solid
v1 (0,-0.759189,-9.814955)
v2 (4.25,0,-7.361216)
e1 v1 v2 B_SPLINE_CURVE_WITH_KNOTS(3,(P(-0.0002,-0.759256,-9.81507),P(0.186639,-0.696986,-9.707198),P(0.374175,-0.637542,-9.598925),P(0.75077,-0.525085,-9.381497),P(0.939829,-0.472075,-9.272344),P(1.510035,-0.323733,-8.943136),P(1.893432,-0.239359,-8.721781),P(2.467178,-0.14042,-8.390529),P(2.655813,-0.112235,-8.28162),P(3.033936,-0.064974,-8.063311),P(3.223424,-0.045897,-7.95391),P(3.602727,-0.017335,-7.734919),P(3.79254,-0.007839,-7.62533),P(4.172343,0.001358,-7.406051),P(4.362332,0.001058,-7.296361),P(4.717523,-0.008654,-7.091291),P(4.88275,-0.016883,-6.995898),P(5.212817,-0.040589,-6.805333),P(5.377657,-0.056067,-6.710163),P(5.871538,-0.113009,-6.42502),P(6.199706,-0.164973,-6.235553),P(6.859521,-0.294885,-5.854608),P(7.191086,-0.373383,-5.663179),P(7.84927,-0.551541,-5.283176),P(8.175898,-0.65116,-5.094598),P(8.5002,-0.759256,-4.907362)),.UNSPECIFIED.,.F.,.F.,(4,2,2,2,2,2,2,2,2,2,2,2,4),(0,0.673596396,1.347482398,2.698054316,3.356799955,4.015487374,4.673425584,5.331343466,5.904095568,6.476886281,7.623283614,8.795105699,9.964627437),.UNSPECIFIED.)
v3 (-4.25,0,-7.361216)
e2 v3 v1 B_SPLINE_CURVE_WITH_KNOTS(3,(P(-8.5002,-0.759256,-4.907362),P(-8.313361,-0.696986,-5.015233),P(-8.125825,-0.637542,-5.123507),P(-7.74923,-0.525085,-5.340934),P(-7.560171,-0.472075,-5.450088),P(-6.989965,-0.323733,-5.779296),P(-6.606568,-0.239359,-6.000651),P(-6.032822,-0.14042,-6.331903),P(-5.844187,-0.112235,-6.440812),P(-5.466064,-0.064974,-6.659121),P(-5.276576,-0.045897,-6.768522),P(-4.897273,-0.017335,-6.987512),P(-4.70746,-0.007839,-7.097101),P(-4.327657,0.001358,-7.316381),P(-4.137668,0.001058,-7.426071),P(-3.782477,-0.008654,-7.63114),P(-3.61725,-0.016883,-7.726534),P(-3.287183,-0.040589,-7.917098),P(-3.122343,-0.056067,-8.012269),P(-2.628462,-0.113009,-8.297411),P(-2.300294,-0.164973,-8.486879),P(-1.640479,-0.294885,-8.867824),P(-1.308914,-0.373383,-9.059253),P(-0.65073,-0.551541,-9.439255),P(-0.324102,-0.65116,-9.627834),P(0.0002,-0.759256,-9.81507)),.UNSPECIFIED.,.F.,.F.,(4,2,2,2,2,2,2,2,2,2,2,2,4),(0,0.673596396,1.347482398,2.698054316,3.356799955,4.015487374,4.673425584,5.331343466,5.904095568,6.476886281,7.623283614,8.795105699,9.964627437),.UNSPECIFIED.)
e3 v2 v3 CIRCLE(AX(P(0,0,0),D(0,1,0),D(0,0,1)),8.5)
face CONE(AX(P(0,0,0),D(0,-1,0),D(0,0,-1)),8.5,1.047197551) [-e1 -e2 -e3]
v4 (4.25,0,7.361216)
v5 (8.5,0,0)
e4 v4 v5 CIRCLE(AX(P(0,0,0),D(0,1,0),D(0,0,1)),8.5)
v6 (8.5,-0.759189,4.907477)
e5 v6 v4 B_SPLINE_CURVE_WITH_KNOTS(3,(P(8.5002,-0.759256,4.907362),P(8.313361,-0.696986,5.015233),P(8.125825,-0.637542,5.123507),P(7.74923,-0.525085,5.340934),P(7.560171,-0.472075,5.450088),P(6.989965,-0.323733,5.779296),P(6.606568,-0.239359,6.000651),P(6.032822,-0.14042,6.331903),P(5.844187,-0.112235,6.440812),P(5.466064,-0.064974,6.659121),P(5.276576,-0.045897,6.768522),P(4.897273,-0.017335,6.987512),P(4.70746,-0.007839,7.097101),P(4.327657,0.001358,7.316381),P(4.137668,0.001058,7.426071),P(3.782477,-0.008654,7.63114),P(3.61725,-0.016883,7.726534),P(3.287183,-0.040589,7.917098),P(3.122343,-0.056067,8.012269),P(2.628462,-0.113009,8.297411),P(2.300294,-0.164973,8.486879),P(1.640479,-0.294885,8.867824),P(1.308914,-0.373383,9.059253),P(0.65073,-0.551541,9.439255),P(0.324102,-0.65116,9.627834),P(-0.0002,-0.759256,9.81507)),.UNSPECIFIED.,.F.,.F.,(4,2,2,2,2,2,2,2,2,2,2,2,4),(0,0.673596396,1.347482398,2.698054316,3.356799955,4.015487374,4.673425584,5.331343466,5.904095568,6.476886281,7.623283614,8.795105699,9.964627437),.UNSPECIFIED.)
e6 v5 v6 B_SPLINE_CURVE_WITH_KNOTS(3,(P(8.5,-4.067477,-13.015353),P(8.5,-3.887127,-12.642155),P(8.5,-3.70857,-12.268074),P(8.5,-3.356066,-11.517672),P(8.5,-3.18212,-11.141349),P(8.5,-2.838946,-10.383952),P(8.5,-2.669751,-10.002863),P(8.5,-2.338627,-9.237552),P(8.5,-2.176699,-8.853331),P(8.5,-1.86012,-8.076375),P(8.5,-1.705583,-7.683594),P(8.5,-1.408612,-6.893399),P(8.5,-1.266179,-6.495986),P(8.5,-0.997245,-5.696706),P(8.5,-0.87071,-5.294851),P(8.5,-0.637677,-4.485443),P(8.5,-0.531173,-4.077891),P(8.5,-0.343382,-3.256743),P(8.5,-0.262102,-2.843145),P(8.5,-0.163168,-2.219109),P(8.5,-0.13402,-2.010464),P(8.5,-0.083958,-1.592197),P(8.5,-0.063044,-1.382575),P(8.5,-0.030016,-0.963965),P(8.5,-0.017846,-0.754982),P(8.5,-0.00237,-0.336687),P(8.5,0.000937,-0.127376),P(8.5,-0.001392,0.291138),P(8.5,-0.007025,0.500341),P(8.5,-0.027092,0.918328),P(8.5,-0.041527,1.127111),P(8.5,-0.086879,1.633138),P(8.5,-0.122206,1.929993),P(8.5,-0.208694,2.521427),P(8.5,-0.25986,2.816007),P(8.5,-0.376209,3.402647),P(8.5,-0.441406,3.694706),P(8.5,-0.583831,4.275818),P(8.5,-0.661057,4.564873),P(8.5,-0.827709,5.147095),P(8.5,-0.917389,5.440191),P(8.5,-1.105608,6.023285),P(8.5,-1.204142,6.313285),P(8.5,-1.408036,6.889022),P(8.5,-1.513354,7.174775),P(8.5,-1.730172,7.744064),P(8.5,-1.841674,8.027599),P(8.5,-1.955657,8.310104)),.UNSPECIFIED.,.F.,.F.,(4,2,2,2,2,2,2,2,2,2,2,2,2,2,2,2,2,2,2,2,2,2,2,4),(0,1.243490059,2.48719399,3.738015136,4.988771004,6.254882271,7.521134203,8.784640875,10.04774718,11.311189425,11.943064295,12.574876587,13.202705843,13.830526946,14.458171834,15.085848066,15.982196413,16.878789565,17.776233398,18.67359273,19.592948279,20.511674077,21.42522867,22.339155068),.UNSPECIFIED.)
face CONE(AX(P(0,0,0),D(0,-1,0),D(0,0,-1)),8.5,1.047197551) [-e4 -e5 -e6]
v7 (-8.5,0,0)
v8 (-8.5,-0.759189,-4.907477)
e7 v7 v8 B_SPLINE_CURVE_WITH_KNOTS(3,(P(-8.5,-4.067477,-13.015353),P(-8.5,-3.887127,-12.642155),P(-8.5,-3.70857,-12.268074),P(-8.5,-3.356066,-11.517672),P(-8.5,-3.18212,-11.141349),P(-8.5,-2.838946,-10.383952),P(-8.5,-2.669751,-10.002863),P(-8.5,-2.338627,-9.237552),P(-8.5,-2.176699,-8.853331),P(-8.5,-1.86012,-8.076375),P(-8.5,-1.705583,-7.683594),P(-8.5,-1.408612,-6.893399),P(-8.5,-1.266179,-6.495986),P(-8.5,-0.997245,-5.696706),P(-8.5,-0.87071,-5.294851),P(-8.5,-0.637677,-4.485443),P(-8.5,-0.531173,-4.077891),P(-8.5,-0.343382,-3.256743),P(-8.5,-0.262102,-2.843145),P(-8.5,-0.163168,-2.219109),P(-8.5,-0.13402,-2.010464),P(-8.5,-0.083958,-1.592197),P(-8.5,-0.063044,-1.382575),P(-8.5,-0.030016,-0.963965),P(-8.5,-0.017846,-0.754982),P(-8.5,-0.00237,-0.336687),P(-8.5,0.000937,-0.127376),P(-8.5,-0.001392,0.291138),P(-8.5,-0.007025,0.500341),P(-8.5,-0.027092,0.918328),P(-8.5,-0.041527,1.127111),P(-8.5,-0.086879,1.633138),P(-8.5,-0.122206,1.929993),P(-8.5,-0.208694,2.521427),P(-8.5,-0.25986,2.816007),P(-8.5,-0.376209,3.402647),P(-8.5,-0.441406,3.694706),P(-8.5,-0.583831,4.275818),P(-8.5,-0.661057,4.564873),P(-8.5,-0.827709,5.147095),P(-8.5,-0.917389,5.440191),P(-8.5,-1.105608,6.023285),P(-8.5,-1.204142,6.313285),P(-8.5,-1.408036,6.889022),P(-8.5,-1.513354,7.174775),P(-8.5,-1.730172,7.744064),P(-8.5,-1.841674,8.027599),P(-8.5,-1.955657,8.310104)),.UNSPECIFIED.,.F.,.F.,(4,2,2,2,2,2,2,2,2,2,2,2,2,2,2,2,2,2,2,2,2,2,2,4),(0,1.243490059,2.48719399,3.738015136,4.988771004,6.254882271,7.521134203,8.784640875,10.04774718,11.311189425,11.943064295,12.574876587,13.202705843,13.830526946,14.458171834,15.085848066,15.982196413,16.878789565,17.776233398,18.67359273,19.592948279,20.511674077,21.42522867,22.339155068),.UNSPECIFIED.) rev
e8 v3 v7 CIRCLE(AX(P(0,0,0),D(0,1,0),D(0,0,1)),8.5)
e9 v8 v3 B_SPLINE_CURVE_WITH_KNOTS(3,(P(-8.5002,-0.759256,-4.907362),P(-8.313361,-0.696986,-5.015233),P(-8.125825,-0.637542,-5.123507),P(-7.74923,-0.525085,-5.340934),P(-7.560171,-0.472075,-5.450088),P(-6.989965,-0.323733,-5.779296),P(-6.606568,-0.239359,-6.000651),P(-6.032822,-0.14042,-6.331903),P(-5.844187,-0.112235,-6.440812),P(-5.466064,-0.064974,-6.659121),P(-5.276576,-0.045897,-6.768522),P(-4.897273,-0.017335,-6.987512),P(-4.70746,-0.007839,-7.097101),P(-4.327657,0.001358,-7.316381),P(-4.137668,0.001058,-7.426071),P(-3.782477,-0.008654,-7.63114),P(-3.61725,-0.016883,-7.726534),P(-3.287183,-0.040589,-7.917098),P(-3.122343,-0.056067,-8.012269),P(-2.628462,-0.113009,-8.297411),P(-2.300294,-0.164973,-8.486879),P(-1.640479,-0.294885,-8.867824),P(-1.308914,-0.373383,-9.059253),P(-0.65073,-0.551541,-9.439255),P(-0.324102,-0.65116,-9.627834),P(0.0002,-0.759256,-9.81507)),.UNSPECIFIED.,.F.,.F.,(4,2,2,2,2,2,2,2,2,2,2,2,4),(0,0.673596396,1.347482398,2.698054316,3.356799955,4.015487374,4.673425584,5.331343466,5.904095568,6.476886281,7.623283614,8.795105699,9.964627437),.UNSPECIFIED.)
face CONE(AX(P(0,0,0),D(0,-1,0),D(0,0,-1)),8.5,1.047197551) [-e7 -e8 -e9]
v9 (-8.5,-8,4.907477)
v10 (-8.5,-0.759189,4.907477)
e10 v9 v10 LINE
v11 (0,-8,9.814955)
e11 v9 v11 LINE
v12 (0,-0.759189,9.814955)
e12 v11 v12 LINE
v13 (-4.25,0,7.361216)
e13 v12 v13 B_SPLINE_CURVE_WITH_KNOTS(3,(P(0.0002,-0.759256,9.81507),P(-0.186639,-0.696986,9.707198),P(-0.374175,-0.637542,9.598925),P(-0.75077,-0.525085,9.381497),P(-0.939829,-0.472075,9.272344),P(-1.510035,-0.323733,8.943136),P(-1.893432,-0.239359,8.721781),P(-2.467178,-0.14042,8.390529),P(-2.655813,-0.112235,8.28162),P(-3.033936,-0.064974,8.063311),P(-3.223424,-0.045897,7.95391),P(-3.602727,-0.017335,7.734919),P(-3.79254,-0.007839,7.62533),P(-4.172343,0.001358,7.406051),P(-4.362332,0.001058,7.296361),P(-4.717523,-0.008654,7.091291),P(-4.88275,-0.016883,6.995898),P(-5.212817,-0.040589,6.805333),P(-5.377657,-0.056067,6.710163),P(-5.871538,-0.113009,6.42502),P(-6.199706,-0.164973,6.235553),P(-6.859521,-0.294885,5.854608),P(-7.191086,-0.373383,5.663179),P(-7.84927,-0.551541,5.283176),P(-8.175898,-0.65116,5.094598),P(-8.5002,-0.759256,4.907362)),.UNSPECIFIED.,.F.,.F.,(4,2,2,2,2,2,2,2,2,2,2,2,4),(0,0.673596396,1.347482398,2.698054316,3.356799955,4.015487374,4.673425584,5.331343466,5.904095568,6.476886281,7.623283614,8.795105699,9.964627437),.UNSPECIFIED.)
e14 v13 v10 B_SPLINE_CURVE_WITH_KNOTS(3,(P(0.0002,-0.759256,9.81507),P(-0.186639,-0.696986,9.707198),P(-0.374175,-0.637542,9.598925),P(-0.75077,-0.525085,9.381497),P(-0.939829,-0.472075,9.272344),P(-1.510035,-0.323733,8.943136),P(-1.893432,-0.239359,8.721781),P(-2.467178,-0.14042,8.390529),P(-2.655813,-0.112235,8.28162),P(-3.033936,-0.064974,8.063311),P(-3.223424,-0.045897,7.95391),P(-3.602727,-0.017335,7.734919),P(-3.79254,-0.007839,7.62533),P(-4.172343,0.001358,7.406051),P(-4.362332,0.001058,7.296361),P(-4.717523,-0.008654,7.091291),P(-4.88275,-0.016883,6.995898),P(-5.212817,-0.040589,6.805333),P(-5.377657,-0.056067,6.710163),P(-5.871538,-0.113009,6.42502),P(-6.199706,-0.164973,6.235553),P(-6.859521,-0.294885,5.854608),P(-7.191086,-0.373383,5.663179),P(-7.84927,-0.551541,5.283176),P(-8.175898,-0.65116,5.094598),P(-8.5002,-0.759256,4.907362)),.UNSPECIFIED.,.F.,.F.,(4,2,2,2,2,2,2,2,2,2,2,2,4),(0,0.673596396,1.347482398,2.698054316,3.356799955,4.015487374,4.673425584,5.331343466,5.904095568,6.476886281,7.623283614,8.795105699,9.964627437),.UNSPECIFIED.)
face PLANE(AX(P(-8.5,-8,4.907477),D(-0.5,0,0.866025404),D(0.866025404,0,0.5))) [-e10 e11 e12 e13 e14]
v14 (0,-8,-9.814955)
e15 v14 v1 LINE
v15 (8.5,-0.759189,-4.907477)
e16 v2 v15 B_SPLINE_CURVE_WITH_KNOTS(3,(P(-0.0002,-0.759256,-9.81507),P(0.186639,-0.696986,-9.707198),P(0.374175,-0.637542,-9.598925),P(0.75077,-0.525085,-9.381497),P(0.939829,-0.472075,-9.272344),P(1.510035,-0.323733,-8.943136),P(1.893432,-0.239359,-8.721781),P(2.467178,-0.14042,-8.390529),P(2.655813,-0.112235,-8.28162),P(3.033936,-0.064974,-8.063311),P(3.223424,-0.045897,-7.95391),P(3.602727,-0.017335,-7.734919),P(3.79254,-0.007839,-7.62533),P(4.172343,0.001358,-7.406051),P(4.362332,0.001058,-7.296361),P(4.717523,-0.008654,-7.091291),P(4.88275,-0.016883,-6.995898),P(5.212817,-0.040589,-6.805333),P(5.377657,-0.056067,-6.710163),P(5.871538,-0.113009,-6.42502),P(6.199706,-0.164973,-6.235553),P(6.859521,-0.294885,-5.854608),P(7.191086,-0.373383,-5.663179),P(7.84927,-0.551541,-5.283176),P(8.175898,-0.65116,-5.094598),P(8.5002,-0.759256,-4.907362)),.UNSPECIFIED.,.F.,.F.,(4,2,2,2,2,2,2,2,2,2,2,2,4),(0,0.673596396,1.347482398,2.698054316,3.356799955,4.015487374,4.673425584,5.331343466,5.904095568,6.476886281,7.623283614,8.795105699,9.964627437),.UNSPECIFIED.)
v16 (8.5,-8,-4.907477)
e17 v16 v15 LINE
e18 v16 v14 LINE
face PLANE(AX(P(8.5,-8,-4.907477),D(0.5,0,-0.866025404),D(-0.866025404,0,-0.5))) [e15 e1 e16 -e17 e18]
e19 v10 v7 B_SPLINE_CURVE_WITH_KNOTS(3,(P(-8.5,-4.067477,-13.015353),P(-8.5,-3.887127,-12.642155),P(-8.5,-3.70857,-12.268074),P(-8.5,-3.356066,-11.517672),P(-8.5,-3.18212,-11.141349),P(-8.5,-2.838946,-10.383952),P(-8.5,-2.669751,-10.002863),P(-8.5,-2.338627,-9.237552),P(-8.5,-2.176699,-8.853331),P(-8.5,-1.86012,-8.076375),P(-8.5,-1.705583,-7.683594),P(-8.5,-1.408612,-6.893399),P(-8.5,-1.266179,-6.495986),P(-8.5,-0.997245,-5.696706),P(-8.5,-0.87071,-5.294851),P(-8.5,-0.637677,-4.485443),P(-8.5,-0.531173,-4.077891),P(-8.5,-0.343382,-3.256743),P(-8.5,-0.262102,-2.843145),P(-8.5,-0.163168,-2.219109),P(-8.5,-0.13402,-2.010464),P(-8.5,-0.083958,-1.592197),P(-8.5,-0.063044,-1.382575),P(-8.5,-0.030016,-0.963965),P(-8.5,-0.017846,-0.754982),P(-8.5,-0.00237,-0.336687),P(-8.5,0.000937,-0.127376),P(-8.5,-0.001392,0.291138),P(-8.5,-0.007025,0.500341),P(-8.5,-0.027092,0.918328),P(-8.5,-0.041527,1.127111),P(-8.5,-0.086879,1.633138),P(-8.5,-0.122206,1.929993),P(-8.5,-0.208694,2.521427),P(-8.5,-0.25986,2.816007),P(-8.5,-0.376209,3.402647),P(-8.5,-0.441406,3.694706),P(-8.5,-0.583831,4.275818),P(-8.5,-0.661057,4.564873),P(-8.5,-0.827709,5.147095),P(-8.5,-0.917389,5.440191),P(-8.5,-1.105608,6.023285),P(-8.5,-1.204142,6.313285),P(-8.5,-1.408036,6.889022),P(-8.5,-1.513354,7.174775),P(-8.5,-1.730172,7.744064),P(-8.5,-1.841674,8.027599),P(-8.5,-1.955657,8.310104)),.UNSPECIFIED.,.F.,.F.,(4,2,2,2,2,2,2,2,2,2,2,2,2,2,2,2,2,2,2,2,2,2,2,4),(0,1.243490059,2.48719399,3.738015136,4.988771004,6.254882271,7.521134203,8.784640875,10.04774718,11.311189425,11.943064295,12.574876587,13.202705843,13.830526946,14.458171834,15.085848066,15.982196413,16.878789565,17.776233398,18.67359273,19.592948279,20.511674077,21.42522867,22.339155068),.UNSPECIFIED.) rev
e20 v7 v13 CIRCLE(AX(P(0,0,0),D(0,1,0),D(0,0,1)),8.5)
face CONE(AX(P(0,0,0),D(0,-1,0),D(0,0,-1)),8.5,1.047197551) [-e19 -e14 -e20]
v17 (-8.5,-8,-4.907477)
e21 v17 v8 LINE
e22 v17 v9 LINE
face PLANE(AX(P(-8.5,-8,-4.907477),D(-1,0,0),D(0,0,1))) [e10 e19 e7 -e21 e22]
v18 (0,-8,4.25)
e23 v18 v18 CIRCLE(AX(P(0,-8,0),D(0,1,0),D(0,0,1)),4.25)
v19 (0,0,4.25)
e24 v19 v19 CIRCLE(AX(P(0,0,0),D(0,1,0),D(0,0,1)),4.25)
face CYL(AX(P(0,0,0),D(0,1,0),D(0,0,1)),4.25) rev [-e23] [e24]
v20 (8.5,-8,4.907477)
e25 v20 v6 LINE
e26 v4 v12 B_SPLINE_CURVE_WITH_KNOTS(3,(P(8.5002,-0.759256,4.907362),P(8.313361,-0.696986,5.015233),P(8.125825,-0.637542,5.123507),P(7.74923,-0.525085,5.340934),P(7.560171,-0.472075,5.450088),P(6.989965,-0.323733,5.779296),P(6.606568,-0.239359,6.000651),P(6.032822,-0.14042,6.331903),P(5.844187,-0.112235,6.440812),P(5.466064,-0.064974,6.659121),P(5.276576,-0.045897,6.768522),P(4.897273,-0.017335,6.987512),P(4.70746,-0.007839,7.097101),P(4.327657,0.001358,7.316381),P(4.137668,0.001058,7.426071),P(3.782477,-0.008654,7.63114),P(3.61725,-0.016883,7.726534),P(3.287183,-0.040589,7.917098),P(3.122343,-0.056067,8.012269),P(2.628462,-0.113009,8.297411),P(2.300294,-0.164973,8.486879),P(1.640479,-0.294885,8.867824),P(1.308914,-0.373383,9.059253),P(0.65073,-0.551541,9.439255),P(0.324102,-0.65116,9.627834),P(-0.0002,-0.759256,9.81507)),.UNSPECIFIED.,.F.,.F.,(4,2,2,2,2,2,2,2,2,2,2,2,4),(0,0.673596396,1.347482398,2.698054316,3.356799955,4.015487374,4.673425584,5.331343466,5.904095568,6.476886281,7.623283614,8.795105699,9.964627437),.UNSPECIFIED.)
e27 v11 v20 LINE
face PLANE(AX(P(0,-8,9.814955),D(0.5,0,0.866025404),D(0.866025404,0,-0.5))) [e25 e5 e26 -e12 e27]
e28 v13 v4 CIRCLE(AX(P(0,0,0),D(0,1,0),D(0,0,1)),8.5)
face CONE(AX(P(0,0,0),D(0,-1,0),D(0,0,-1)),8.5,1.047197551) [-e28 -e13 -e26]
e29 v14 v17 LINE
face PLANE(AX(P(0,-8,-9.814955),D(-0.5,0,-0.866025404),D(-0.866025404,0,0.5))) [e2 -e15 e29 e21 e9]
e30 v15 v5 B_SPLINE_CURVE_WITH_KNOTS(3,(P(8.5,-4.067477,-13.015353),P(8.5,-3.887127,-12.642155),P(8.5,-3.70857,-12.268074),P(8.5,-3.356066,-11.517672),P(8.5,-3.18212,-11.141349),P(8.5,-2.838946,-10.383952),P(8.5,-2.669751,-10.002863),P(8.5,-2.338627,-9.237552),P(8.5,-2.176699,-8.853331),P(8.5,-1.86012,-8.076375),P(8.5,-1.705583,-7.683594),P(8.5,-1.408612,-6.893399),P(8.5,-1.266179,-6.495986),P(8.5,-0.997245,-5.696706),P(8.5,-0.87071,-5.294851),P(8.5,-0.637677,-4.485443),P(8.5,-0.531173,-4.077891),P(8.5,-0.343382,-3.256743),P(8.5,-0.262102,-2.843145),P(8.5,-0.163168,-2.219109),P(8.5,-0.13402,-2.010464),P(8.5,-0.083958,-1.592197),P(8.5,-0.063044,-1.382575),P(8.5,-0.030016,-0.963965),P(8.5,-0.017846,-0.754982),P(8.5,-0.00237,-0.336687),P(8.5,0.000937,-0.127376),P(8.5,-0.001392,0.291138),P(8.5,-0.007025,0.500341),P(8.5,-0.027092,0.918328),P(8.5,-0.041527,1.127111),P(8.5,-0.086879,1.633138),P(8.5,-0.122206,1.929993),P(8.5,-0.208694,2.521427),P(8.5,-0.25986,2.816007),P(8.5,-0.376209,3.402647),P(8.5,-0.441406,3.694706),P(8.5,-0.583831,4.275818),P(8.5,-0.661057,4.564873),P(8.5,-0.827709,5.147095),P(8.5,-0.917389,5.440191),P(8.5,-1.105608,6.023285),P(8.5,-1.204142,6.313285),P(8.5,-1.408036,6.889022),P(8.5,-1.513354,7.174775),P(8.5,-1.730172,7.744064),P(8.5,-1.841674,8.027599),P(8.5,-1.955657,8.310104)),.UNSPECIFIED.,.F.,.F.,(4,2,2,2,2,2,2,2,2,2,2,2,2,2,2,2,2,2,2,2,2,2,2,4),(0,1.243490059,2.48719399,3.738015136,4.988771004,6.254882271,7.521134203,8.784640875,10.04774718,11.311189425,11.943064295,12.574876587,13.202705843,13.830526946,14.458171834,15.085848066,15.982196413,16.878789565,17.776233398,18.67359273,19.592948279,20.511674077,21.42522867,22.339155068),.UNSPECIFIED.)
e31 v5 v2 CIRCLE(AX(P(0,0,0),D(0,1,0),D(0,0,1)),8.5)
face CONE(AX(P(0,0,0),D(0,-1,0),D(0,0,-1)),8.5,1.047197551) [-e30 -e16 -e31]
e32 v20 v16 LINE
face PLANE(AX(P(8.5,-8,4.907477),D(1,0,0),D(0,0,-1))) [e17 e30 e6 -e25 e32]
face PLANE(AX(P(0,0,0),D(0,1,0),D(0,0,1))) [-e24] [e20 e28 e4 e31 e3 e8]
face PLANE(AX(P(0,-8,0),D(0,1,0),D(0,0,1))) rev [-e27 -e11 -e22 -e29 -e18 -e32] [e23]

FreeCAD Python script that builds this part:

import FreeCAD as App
import Part
import Sketcher
from FreeCAD import Vector
Q = App.Units.Quantity

doc = App.newDocument("Part")
body = doc.addObject("PartDesign::Body", "Body")

# Sketch on XZ plane
sketch1 = body.newObject("Sketcher::SketchObject", "Sketch")
sketch1.AttachmentSupport = (doc.getObject("XZ_Plane"), [""])
sketch1.MapMode = "FlatFace"
sketch1.addGeometry([
    Part.LineSegment(Vector(0, -10, 0), Vector(-8, -5, 0)),  # 0
    Part.LineSegment(Vector(-8, -5, 0), Vector(-8, 5, 0)),  # 1
    Part.LineSegment(Vector(-8, 5, 0), Vector(0, 10, 0)),  # 2
    Part.LineSegment(Vector(0, 10, 0), Vector(8, 5, 0)),  # 3
    Part.LineSegment(Vector(8, 5, 0), Vector(8, -5, 0)),  # 4
    Part.LineSegment(Vector(8, -5, 0), Vector(0, -10, 0)),  # 5
], False)
sketch1.addConstraint([
    Sketcher.Constraint("Coincident", 0, 2, 1, 1),
    Sketcher.Constraint("Coincident", 1, 2, 2, 1),
    Sketcher.Constraint("Coincident", 2, 2, 3, 1),
    Sketcher.Constraint("Coincident", 3, 2, 4, 1),
    Sketcher.Constraint("Coincident", 4, 2, 5, 1),
    Sketcher.Constraint("Coincident", 5, 2, 0, 1),
    Sketcher.Constraint("Vertical", 1),
    Sketcher.Constraint("Vertical", 4),
    Sketcher.Constraint("Symmetric", 0, 2, 3, 2, -1, 1),
    Sketcher.Constraint("Symmetric", 2, 2, 5, 2, -1, 1),
    Sketcher.Constraint("PointOnObject", 2, 2, -2),
    Sketcher.Constraint("Parallel", 2, 5),
    Sketcher.Constraint("Horizontal", 1, 2, 3, 2),
    Sketcher.Constraint("Angle", 0, Q("150 deg")),
    Sketcher.Constraint("DistanceX", 1, 2, 3, 2, Q("17 mm")),
    Sketcher.Constraint("DistanceY", 1, 1, 1, 2, Q("9.814955 mm")),
])
pad1 = body.newObject("PartDesign::Pad", "Pad")
pad1.Profile = sketch1
pad1.Length = 8

# Sketch on YZ plane
sketch2 = body.newObject("Sketcher::SketchObject", "Sketch001")
sketch2.AttachmentSupport = (doc.getObject("YZ_Plane"), [""])
sketch2.MapMode = "FlatFace"
sketch2.addGeometry([
    Part.LineSegment(Vector(0, -9.8, 0), Vector(0, -8.5, 0)),
    Part.LineSegment(Vector(0, -8.5, 0), Vector(-0.8, -9.8, 0)),
    Part.LineSegment(Vector(-0.8, -9.8, 0), Vector(0, -9.8, 0)),
], False)
sketch2.addConstraint([
    Sketcher.Constraint("Coincident", 0, 2, 1, 1),
    Sketcher.Constraint("Coincident", 1, 2, 2, 1),
    Sketcher.Constraint("Coincident", 2, 2, 0, 1),
    Sketcher.Constraint("Vertical", 0),
    Sketcher.Constraint("Horizontal", 2),
    Sketcher.Constraint("PointOnObject", 0, 2, -2),
    Sketcher.Constraint("Angle", 1, Q("-120 deg")),
    Sketcher.Constraint("DistanceY", 0, 2, -1, 1, Q("8.5 mm")),
    Sketcher.Constraint("DistanceX", 2, 1, 2, 2, Q("0.759189 mm")),
])
groove = body.newObject("PartDesign::Groove", "Groove")
groove.Profile = sketch2
groove.ReferenceAxis = (sketch2, ["H_Axis"])
groove.Angle = 360

# Sketch on XZ plane
sketch3 = body.newObject("Sketcher::SketchObject", "Sketch002")
sketch3.AttachmentSupport = (doc.getObject("XZ_Plane"), [""])
sketch3.MapMode = "FlatFace"
sketch3.addGeometry(Part.Circle(Vector(0, 0, 0), Vector(0, 0, 1), 4.2), False)
sketch3.addConstraint([
    Sketcher.Constraint("Coincident", 0, 3, -1, 1),
    Sketcher.Constraint("Diameter", 0, Q("8.5 mm")),
])
doc.recompute()
hole = body.newObject("PartDesign::Hole", "Hole")
hole.Profile = sketch3
hole.ThreadType = "None"
hole.Diameter = 8.5
hole.DepthType = "ThroughAll"
hole.Reversed = True

doc.recompute()
